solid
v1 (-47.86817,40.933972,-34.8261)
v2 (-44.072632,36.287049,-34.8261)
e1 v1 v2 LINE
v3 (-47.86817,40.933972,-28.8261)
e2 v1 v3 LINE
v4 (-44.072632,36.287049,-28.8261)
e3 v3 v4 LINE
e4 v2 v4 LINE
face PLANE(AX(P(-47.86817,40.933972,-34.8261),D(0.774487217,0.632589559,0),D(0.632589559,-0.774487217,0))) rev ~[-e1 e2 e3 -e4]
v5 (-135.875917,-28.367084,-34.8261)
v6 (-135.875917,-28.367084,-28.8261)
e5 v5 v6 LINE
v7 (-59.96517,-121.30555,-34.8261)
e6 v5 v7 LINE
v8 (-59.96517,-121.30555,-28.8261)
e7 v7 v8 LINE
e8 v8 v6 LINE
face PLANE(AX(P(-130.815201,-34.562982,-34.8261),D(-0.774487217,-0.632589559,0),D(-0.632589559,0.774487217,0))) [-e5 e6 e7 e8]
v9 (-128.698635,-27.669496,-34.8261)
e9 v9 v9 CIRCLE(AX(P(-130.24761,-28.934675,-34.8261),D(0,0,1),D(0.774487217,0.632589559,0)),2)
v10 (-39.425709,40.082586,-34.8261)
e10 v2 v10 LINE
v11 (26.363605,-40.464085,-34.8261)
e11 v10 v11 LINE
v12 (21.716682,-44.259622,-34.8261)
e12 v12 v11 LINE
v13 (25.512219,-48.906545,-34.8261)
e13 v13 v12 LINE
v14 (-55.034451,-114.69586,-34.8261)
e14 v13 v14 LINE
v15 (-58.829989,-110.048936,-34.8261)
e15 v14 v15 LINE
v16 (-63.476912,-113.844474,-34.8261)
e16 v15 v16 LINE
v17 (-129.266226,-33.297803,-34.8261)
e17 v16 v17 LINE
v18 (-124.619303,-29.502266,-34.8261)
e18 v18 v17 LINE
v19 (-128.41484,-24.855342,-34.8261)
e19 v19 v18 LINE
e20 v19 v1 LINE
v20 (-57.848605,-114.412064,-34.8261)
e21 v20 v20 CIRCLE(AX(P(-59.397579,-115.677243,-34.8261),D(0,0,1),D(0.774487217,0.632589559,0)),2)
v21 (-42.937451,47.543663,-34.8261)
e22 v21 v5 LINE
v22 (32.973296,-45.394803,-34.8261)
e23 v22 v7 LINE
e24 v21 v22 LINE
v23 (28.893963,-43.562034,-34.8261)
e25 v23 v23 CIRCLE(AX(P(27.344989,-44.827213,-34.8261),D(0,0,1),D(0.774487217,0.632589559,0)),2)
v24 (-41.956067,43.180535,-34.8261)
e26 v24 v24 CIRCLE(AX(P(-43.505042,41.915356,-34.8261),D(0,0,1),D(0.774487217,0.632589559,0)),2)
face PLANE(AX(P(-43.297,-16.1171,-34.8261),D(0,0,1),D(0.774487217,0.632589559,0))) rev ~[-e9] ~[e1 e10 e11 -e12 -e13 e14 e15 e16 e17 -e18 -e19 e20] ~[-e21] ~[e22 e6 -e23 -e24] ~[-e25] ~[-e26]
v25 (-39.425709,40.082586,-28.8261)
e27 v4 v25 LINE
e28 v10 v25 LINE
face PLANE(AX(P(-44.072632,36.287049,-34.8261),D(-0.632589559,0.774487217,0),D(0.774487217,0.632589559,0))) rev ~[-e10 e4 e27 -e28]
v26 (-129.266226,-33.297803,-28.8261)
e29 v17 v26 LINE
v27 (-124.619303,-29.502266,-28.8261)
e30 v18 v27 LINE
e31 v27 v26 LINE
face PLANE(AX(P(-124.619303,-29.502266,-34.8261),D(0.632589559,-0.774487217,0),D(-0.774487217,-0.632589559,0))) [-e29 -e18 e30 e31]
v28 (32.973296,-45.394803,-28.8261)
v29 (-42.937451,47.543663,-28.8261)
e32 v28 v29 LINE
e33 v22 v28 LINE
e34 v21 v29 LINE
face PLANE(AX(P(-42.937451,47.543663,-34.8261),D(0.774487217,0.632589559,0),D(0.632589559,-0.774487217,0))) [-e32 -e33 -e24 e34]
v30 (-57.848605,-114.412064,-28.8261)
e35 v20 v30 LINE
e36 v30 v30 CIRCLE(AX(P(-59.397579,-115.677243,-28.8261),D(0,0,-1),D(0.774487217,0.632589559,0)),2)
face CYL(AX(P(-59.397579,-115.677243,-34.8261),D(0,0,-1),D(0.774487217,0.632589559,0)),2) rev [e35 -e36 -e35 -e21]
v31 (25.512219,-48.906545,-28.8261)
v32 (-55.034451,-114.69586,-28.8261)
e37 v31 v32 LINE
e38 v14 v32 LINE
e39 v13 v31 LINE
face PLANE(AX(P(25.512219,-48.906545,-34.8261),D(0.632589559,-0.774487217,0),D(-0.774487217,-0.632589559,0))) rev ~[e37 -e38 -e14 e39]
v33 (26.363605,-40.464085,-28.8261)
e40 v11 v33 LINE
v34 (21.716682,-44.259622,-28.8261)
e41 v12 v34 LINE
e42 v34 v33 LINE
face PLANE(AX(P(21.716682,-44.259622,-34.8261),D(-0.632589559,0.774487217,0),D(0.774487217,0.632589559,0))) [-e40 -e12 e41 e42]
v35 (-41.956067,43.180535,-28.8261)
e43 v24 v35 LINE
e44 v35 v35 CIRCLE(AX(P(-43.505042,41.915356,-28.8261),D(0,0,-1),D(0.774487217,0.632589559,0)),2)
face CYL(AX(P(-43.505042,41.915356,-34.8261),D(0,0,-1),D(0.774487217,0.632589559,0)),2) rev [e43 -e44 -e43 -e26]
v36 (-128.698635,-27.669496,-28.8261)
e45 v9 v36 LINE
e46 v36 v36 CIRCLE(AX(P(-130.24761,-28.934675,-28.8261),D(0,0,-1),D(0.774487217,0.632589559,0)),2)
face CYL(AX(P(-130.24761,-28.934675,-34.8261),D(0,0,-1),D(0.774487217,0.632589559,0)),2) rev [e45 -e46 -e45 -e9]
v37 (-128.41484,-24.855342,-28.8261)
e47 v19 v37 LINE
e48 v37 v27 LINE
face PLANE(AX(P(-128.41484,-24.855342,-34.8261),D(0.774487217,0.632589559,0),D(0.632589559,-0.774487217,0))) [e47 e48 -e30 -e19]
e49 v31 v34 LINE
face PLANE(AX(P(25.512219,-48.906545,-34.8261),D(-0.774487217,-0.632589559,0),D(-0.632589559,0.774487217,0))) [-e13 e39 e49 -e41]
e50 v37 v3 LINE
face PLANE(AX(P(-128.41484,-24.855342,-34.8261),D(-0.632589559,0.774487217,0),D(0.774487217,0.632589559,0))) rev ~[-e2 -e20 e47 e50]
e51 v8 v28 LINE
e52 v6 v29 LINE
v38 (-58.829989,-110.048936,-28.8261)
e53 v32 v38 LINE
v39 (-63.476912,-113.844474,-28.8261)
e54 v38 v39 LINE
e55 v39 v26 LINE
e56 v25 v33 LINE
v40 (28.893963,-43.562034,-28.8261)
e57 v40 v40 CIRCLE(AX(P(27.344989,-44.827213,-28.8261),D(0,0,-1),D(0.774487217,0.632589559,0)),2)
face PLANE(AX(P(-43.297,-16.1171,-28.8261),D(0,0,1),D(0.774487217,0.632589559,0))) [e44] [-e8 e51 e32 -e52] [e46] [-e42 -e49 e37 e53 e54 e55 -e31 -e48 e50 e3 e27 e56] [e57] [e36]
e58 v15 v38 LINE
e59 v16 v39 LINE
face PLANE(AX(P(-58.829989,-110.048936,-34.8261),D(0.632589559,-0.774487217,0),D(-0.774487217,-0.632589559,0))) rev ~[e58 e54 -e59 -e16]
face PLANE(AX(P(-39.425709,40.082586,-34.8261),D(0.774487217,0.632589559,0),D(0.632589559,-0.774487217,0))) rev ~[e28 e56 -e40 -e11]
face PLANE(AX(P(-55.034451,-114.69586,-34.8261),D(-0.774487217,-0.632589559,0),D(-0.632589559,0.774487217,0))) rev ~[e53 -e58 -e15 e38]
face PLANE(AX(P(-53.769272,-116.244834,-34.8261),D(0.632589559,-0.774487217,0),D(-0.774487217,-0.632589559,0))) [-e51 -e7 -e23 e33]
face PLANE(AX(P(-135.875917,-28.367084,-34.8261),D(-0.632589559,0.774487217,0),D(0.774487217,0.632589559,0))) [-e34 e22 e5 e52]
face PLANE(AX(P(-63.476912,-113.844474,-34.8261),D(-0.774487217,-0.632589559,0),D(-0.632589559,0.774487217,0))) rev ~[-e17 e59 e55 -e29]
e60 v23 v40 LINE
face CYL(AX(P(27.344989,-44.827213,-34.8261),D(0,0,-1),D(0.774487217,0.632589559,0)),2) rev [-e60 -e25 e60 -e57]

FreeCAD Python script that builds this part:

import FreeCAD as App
import Part
import Sketcher

doc = App.newDocument("Part")
body = doc.addObject("PartDesign::Body", "Body")

# Sketch on XY plane
sketch1 = body.newObject("Sketcher::SketchObject", "Sketch")
sketch1.AttachmentSupport = (doc.getObject("XY_Plane"), [""])
sketch1.MapMode = "FlatFace"
sketch1.AttachmentOffset = App.Placement(App.Vector(0, 0, -34.8261), App.Rotation())
sketch1.addGeometry([
    Part.LineSegment(App.Vector(-135.875917, -28.367084, 0), App.Vector(-59.96517, -121.30555, 0)),  # 0
    Part.LineSegment(App.Vector(-59.96517, -121.30555, 0), App.Vector(32.973296, -45.394803, 0)),  # 1
    Part.LineSegment(App.Vector(32.973296, -45.394803, 0), App.Vector(-42.937451, 47.543663, 0)),  # 2
    Part.LineSegment(App.Vector(-42.937451, 47.543663, 0), App.Vector(-135.875917, -28.367084, 0)),  # 3
    Part.LineSegment(App.Vector(-128.41484, -24.855342, 0), App.Vector(-47.86817, 40.933972, 0)),  # 4
    Part.LineSegment(App.Vector(-47.86817, 40.933972, 0), App.Vector(-44.072632, 36.287049, 0)),  # 5
    Part.LineSegment(App.Vector(-44.072632, 36.287049, 0), App.Vector(-39.425709, 40.082586, 0)),  # 6
    Part.LineSegment(App.Vector(-39.425709, 40.082586, 0), App.Vector(26.363605, -40.464085, 0)),  # 7
    Part.LineSegment(App.Vector(26.363605, -40.464085, 0), App.Vector(21.716682, -44.259622, 0)),  # 8
    Part.LineSegment(App.Vector(21.716682, -44.259622, 0), App.Vector(25.512219, -48.906545, 0)),  # 9
    Part.LineSegment(App.Vector(25.512219, -48.906545, 0), App.Vector(-55.034451, -114.695859, 0)),  # 10
    Part.LineSegment(App.Vector(-55.034451, -114.695859, 0), App.Vector(-58.829989, -110.048936, 0)),  # 11
    Part.LineSegment(App.Vector(-58.829989, -110.048936, 0), App.Vector(-63.476912, -113.844474, 0)),  # 12
    Part.LineSegment(App.Vector(-63.476912, -113.844474, 0), App.Vector(-129.266226, -33.297803, 0)),  # 13
    Part.LineSegment(App.Vector(-129.266226, -33.297803, 0), App.Vector(-124.619303, -29.502266, 0)),  # 14
    Part.LineSegment(App.Vector(-124.619303, -29.502266, 0), App.Vector(-128.41484, -24.855342, 0)),  # 15
    Part.Circle(App.Vector(-130.24761, -28.934675, 0), App.Vector(0, 0, 1), 2),  # 16
    Part.Circle(App.Vector(-43.505042, 41.915356, 0), App.Vector(0, 0, 1), 2),  # 17
    Part.Circle(App.Vector(-59.397579, -115.677243, 0), App.Vector(0, 0, 1), 2),  # 18
    Part.Circle(App.Vector(27.344989, -44.827213, 0), App.Vector(0, 0, 1), 2),  # 19
], False)
sketch1.addConstraint([
    Sketcher.Constraint("Coincident", 0, 2, 1, 1),
    Sketcher.Constraint("Coincident", 1, 2, 2, 1),
    Sketcher.Constraint("Coincident", 2, 2, 3, 1),
    Sketcher.Constraint("Coincident", 3, 2, 0, 1),
    Sketcher.Constraint("Coincident", 4, 2, 5, 1),
    Sketcher.Constraint("Coincident", 5, 2, 6, 1),
    Sketcher.Constraint("Coincident", 6, 2, 7, 1),
    Sketcher.Constraint("Coincident", 7, 2, 8, 1),
    Sketcher.Constraint("Coincident", 8, 2, 9, 1),
    Sketcher.Constraint("Coincident", 9, 2, 10, 1),
    Sketcher.Constraint("Coincident", 10, 2, 11, 1),
    Sketcher.Constraint("Coincident", 11, 2, 12, 1),
    Sketcher.Constraint("Coincident", 12, 2, 13, 1),
    Sketcher.Constraint("Coincident", 13, 2, 14, 1),
    Sketcher.Constraint("Coincident", 14, 2, 15, 1),
    Sketcher.Constraint("Coincident", 15, 2, 4, 1),
    Sketcher.Constraint("Diameter", 16, 4.0),
    Sketcher.Constraint("Diameter", 17, 4.0),
    Sketcher.Constraint("Diameter", 18, 4.0),
    Sketcher.Constraint("Diameter", 19, 4.0),
    Sketcher.Constraint("Distance", 0, 120.0),
    Sketcher.Constraint("Distance", 1, 120.0),
    Sketcher.Constraint("Distance", 2, 120.0),
    Sketcher.Constraint("Distance", 3, 120.0),
    Sketcher.Constraint("Distance", 4, 104.0),
    Sketcher.Constraint("Distance", 5, 6.0),
    Sketcher.Constraint("Distance", 6, 6.0),
    Sketcher.Constraint("Distance", 7, 104.0),
    Sketcher.Constraint("Distance", 8, 6.0),
    Sketcher.Constraint("Distance", 9, 6.0),
    Sketcher.Constraint("Distance", 10, 104.0),
    Sketcher.Constraint("Distance", 11, 6.0),
    Sketcher.Constraint("Distance", 12, 6.0),
    Sketcher.Constraint("Distance", 13, 104.0),
    Sketcher.Constraint("Distance", 14, 6.0),
    Sketcher.Constraint("Distance", 15, 6.0),
    Sketcher.Constraint("DistanceX", 11, 2, -1, 1, 58.83),
    Sketcher.Constraint("DistanceY", 16, 3, 17, 3, 70.85),
    Sketcher.Constraint("DistanceX", 16, 3, 18, 3, 70.85),
    Sketcher.Constraint("DistanceX", 17, 3, 19, 3, 70.85),
    Sketcher.Constraint("DistanceY", 18, 3, 19, 3, 70.85),
    Sketcher.Constraint("DistanceX", 17, 3, -1, 1, 43.505),
    Sketcher.Constraint("DistanceX", 3, 2, -1, 1, 135.876),
    Sketcher.Constraint("DistanceY", 3, 2, -1, 1, 28.367),
    Sketcher.Constraint("DistanceY", -1, 1, 4, 2, 40.934),
    Sketcher.Constraint("DistanceY", -1, 1, 5, 2, 36.287),
    Sketcher.Constraint("DistanceY", 7, 2, -1, 1, 40.464),
    Sketcher.Constraint("DistanceY", 11, 2, -1, 1, 110.049),
    Sketcher.Constraint("DistanceX", 12, 2, -1, 1, 63.477),
    Sketcher.Constraint("DistanceY", 0, 2, 17, 3, 163.221),
    Sketcher.Constraint("DistanceX", 16, 3, 1, 2, 163.221),
    Sketcher.Constraint("DistanceY", 18, 3, 2, 2, 163.221),
    Sketcher.Constraint("DistanceX", 16, 3, 5, 2, 86.175),
    Sketcher.Constraint("DistanceX", 5, 2, 6, 2, 4.647),
    Sketcher.Constraint("DistanceY", 6, 2, 2, 2, 7.461),
    Sketcher.Constraint("DistanceX", 8, 2, 7, 2, 4.647),
    Sketcher.Constraint("DistanceY", 9, 2, 8, 2, 4.647),
    Sketcher.Constraint("DistanceY", 10, 2, 11, 2, 4.647),
    Sketcher.Constraint("DistanceX", 13, 2, 14, 2, 4.647),
    Sketcher.Constraint("DistanceY", 14, 2, 15, 2, 4.647),
])
pad1 = body.newObject("PartDesign::Pad", "Pad")
pad1.Profile = sketch1
pad1.Length = 6

doc.recompute()
